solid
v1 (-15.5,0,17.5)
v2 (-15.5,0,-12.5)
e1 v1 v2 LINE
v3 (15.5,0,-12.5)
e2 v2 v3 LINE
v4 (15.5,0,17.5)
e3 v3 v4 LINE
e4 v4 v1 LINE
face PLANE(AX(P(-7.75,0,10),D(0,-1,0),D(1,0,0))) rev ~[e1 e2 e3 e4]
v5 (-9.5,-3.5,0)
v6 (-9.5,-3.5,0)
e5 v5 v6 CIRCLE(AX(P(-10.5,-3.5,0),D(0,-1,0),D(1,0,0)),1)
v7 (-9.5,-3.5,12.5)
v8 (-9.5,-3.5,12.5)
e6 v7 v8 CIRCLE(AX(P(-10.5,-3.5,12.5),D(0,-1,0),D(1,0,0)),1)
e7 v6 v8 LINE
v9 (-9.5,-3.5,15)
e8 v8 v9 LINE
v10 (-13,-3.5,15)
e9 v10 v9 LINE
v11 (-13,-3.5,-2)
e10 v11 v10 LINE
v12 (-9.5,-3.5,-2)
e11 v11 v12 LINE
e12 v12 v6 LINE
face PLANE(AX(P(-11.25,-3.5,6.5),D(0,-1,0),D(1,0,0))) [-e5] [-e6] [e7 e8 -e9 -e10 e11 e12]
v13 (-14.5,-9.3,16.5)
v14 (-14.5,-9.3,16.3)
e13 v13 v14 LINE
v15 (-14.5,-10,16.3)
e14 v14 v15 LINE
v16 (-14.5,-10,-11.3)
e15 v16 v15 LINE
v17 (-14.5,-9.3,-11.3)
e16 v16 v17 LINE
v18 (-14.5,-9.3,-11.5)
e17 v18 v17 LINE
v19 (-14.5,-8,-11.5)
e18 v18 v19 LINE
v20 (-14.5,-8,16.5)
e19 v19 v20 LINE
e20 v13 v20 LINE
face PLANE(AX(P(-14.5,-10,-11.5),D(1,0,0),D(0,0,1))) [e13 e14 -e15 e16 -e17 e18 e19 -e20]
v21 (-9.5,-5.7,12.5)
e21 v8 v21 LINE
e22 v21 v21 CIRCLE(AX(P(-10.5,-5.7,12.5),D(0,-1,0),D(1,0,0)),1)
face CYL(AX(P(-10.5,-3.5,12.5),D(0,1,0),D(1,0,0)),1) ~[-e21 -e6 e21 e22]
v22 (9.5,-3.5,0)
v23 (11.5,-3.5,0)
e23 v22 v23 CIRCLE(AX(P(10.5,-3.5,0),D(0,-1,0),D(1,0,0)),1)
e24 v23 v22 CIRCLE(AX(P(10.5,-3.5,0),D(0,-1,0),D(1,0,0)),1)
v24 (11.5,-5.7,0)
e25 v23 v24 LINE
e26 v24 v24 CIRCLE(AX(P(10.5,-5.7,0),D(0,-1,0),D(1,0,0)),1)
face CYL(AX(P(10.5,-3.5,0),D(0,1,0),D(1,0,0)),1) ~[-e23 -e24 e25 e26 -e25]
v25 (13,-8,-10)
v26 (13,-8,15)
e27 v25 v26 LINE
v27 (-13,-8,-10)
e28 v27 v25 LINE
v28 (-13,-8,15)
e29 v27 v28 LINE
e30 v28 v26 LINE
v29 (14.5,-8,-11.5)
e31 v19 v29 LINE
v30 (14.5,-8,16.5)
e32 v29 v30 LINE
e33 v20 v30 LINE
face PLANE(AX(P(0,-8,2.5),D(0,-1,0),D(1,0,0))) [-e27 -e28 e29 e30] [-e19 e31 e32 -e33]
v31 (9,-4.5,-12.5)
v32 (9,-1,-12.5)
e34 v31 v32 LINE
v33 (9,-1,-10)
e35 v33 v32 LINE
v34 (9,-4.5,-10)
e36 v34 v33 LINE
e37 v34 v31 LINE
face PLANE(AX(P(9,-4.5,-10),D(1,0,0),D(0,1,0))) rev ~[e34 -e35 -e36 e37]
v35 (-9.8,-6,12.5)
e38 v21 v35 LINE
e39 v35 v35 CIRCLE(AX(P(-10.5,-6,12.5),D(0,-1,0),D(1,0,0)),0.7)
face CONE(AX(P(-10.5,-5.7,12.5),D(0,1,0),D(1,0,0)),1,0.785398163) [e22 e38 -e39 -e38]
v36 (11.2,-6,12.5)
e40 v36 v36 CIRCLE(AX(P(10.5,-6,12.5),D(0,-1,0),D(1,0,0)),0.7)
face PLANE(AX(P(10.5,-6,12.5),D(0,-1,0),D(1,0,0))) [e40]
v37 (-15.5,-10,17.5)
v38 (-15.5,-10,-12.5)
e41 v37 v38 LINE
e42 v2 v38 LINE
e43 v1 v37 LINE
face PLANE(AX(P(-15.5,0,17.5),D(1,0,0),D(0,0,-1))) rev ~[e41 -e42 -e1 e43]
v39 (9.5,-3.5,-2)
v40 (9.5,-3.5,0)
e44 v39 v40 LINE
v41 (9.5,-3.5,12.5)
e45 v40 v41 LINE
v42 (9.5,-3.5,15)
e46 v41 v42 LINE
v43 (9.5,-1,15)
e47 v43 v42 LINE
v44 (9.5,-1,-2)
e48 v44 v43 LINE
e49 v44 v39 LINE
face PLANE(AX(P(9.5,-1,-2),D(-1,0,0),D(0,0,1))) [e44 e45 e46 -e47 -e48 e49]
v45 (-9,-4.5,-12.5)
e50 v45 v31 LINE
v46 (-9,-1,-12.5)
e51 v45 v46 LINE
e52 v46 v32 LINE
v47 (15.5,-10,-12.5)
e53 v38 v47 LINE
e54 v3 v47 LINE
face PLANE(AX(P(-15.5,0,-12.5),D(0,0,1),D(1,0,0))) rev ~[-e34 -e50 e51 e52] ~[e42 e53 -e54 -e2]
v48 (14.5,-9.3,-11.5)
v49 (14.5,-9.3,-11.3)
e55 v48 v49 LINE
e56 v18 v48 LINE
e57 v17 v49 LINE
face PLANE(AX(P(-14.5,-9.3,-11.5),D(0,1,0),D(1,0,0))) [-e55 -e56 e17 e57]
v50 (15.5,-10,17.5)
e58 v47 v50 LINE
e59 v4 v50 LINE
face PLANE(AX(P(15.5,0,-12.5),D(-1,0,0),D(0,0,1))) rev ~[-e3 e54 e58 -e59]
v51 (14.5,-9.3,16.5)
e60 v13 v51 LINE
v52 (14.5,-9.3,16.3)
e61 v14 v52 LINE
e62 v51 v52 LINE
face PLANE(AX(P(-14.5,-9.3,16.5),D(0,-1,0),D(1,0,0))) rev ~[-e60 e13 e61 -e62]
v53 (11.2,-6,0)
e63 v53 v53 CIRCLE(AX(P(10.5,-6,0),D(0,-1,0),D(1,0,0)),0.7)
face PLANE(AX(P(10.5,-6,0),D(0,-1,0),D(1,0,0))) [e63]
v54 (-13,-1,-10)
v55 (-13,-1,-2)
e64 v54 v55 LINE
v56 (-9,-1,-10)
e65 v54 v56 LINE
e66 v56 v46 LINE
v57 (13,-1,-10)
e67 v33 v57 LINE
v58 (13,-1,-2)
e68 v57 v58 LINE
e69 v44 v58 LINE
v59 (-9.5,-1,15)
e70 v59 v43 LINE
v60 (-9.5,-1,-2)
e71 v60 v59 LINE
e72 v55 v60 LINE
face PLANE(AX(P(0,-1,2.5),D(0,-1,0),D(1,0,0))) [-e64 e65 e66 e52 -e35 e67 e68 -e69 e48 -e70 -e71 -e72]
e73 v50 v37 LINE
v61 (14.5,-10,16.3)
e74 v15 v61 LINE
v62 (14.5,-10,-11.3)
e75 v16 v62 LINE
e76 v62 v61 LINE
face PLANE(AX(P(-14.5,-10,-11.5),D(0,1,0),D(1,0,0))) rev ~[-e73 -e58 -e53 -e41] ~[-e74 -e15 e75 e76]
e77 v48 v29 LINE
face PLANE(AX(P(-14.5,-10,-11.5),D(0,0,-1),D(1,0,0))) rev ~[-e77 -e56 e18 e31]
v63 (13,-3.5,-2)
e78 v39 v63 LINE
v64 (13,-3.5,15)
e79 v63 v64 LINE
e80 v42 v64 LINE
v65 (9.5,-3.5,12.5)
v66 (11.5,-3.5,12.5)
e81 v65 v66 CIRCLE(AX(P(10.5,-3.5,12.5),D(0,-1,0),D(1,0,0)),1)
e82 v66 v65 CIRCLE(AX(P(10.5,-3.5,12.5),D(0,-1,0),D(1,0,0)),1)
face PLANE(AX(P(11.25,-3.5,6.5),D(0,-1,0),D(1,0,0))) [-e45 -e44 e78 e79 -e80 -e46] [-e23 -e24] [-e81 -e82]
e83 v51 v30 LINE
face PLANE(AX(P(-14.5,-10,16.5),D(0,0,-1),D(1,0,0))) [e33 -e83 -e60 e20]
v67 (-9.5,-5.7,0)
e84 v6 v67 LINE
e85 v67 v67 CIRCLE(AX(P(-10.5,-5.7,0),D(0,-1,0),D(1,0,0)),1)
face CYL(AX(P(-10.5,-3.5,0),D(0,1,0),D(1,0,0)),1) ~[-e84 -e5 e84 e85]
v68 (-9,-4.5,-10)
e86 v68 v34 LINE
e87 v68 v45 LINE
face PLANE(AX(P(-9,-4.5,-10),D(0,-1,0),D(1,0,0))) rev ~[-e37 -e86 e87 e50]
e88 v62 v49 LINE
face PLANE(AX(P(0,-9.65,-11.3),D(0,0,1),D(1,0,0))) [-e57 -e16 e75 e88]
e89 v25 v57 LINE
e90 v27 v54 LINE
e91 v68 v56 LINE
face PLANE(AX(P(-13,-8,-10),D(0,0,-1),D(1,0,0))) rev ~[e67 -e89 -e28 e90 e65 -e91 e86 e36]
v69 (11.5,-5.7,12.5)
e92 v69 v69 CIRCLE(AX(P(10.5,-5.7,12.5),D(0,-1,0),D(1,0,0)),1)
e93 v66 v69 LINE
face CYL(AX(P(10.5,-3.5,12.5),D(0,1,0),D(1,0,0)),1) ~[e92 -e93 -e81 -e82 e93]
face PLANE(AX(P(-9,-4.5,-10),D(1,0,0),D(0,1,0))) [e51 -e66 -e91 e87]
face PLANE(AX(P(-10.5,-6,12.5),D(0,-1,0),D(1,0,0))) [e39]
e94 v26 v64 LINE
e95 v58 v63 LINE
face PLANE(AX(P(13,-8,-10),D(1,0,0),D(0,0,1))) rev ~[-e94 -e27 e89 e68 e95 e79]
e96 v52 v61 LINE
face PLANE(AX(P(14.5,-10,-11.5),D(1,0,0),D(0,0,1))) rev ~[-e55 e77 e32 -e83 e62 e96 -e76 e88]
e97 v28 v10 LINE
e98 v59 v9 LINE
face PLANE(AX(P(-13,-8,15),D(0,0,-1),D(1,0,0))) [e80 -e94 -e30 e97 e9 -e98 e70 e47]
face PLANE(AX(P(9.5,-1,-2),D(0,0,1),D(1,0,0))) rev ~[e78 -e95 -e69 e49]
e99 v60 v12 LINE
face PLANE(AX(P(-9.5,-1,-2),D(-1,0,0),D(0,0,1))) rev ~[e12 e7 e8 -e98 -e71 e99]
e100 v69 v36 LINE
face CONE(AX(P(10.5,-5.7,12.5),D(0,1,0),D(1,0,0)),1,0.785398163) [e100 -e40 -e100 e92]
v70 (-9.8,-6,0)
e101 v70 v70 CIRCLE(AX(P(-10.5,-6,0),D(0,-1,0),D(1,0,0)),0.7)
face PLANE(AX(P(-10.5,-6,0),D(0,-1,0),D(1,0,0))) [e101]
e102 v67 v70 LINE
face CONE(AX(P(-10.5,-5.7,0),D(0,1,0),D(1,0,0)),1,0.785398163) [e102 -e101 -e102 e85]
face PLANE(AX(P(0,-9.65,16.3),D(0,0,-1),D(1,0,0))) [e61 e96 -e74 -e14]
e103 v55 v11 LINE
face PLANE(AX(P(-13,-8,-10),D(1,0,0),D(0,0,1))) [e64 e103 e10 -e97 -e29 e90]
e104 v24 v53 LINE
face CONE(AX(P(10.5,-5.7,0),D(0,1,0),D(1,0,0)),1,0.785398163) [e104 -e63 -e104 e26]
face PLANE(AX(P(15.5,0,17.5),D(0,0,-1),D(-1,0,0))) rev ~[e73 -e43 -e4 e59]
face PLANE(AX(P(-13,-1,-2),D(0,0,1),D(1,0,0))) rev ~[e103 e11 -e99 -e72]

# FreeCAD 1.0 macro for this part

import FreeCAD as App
import Part
import Sketcher
from FreeCAD import Vector
Q = App.Units.Quantity


def edges_at(feature, points):
    """Names of the edges that pass closest to the given points."""
    edges = feature.Shape.Edges
    near = lambda p: min(range(len(edges)), key=lambda i: edges[i].distToShape(Part.Vertex(*p))[0])
    return sorted({f"Edge{near(p) + 1}" for p in points})


def add_polygon(sketch, points):
    """Adds a closed chain of lines whose ends are joined by coincident constraints."""
    first, n = sketch.GeometryCount, len(points)
    for a, b in zip(points, points[1:] + points[:1]):
        sketch.addGeometry(Part.LineSegment(App.Vector(*a, 0), App.Vector(*b, 0)), False)
    for i in range(n):
        sketch.addConstraint(Sketcher.Constraint("Coincident", first + i, 2, first + (i + 1) % n, 1))

doc = App.newDocument("Part")
body = doc.addObject("PartDesign::Body", "Body")

# Sketch on XZ plane
sketch1 = doc.addObject("Sketcher::SketchObject", "Sketch")
body.addObject(sketch1)
sketch1.AttachmentSupport = (doc.XZ_Plane, [""])
sketch1.MapMode = "FlatFace"
add_polygon(sketch1, [(-16, 18), (-16, -12), (16, -12), (16, 18)])  # lines 0-3
sketch1.addConstraint([
    Sketcher.Constraint("Vertical", 0),
    Sketcher.Constraint("Horizontal", 1),
    Sketcher.Constraint("Vertical", 2),
    Sketcher.Constraint("Horizontal", 3),
    Sketcher.Constraint("DistanceX", 1, 1, 1, 2, Q("31 mm")),
    Sketcher.Constraint("DistanceY", 0, 2, 0, 1, Q("30 mm")),
    Sketcher.Constraint("DistanceX", 0, 2, -1, 1, Q("15.5 mm")),
    Sketcher.Constraint("DistanceY", 0, 2, -1, 1, Q("12.5 mm")),
])
pad1 = doc.addObject("PartDesign::Pad", "Pad")
body.addObject(pad1)
pad1.Profile = sketch1
pad1.Length = 10

# Sketch on XZ plane
sketch2 = doc.addObject("Sketcher::SketchObject", "Sketch001")
body.addObject(sketch2)
sketch2.AttachmentSupport = (doc.XZ_Plane, [""])
sketch2.MapMode = "FlatFace"
sketch2.AttachmentOffset = App.Placement(Vector(0, 0, 10), App.Rotation())
add_polygon(sketch2, [(-14, 16), (-14, -12), (14, -12), (14, 16)])  # lines 0-3
sketch2.addConstraint([
    Sketcher.Constraint("Vertical", 0),
    Sketcher.Constraint("Horizontal", 1),
    Sketcher.Constraint("Vertical", 2),
    Sketcher.Constraint("Horizontal", 3),
    Sketcher.Constraint("DistanceX", 1, 1, 1, 2, Q("29 mm")),
    Sketcher.Constraint("DistanceY", 0, 2, 0, 1, Q("28 mm")),
    Sketcher.Constraint("DistanceX", 0, 2, -1, 1, Q("14.5 mm")),
    Sketcher.Constraint("DistanceY", 0, 2, -1, 1, Q("11.5 mm")),
])
pocket1 = doc.addObject("PartDesign::Pocket", "Pocket")
body.addObject(pocket1)
pocket1.Profile = sketch2
pocket1.Length = 2

# Sketch on XZ plane
sketch3 = doc.addObject("Sketcher::SketchObject", "Sketch002")
body.addObject(sketch3)
sketch3.AttachmentSupport = (doc.XZ_Plane, [""])
sketch3.MapMode = "FlatFace"
sketch3.AttachmentOffset = App.Placement(Vector(0, 0, 8), App.Rotation())
add_polygon(sketch3, [(-13, 15), (-13, -10), (13, -10), (13, 15)])  # lines 0-3
sketch3.addConstraint([
    Sketcher.Constraint("Vertical", 0),
    Sketcher.Constraint("Horizontal", 1),
    Sketcher.Constraint("Vertical", 2),
    Sketcher.Constraint("Horizontal", 3),
    Sketcher.Constraint("DistanceX", 1, 1, 1, 2, Q("26 mm")),
    Sketcher.Constraint("DistanceY", 0, 2, 0, 1, Q("25 mm")),
    Sketcher.Constraint("DistanceX", 0, 2, -1, 1, Q("13 mm")),
    Sketcher.Constraint("DistanceY", 0, 2, -1, 1, Q("10 mm")),
])
pocket2 = doc.addObject("PartDesign::Pocket", "Pocket001")
body.addObject(pocket2)
pocket2.Profile = sketch3
pocket2.Length = 7

# Sketch on XZ plane
sketch4 = doc.addObject("Sketcher::SketchObject", "Sketch003")
body.addObject(sketch4)
sketch4.AttachmentSupport = (doc.XZ_Plane, [""])
sketch4.MapMode = "FlatFace"
sketch4.AttachmentOffset = App.Placement(Vector(0, 0, 1), App.Rotation())
add_polygon(sketch4, [(-13, 15), (-13, -2), (-9.5, -2), (-9.5, 15)])  # lines 0-3
add_polygon(sketch4, [(9.5, 15), (9.5, -2), (13, -2), (13, 15)])  # lines 4-7
sketch4.addConstraint([
    Sketcher.Constraint("Vertical", 0),
    Sketcher.Constraint("Horizontal", 1),
    Sketcher.Constraint("Vertical", 2),
    Sketcher.Constraint("Horizontal", 3),
    Sketcher.Constraint("Vertical", 4),
    Sketcher.Constraint("Horizontal", 5),
    Sketcher.Constraint("Vertical", 6),
    Sketcher.Constraint("Horizontal", 7),
    Sketcher.Constraint("Symmetric", 1, 2, 4, 2, -2),
    Sketcher.Constraint("Symmetric", 3, 2, 6, 2, -2),
    Sketcher.Constraint("DistanceY", 0, 2, 0, 1, Q("17 mm")),
    Sketcher.Constraint("DistanceX", 1, 1, 1, 2, Q("3.5 mm")),
    Sketcher.Constraint("DistanceX", 0, 2, -1, 1, Q("13 mm")),
    Sketcher.Constraint("DistanceY", 0, 2, -1, 1, Q("2 mm")),
])
pad2 = doc.addObject("PartDesign::Pad", "Pad001")
body.addObject(pad2)
pad2.Profile = sketch4
pad2.Length = 2.5

# Sketch on XZ plane
sketch5 = doc.addObject("Sketcher::SketchObject", "Sketch004")
body.addObject(sketch5)
sketch5.AttachmentSupport = (doc.XZ_Plane, [""])
sketch5.MapMode = "FlatFace"
sketch5.AttachmentOffset = App.Placement(Vector(0, 0, 3.5), App.Rotation())
sketch5.addGeometry([
    Part.Circle(Vector(-10.5, 12.5, 0), Vector(0, 0, 1), 1),
    Part.Circle(Vector(-10.5, 0, 0), Vector(0, 0, 1), 1),
    Part.Circle(Vector(10.5, 12.5, 0), Vector(0, 0, 1), 1),
    Part.Circle(Vector(10.5, 0, 0), Vector(0, 0, 1), 1),
], False)
sketch5.addConstraint([
    Sketcher.Constraint("Equal", 0, 1),
    Sketcher.Constraint("Equal", 1, 2),
    Sketcher.Constraint("Equal", 2, 3),
    Sketcher.Constraint("Symmetric", 1, 3, 3, 3, -1, 1),
    Sketcher.Constraint("Symmetric", 0, 3, 2, 3, -2),
    Sketcher.Constraint("PointOnObject", 1, 3, -1),
    Sketcher.Constraint("Vertical", 0, 3, 1, 3),
    Sketcher.Constraint("Diameter", 0, Q("2 mm")),
    Sketcher.Constraint("DistanceX", 0, 3, 2, 3, Q("21 mm")),
    Sketcher.Constraint("DistanceY", -1, 1, 0, 3, Q("12.5 mm")),
])
pad3 = doc.addObject("PartDesign::Pad", "Pad002")
body.addObject(pad3)
pad3.Profile = sketch5
pad3.Length = 2.5

# Sketch on XY plane
sketch6 = doc.addObject("Sketcher::SketchObject", "Sketch005")
body.addObject(sketch6)
sketch6.AttachmentSupport = (doc.XY_Plane, [""])
sketch6.MapMode = "FlatFace"
sketch6.AttachmentOffset = App.Placement(Vector(0, 0, -10), App.Rotation())
add_polygon(sketch6, [(-9, -1), (-9, -4.5), (9, -4.5), (9, -1)])  # lines 0-3
sketch6.addConstraint([
    Sketcher.Constraint("Vertical", 0),
    Sketcher.Constraint("Horizontal", 1),
    Sketcher.Constraint("Vertical", 2),
    Sketcher.Constraint("Horizontal", 3),
    Sketcher.Constraint("DistanceX", 1, 1, 1, 2, Q("18 mm")),
    Sketcher.Constraint("DistanceY", 0, 2, 0, 1, Q("3.5 mm")),
    Sketcher.Constraint("DistanceX", 0, 2, -1, 1, Q("9 mm")),
    Sketcher.Constraint("DistanceY", 2, 2, -1, 1, Q("1 mm")),
])
pocket3 = doc.addObject("PartDesign::Pocket", "Pocket002")
body.addObject(pocket3)
pocket3.Profile = sketch6
pocket3.Length = 25
doc.recompute()

chamfer = doc.addObject("PartDesign::Chamfer", "Chamfer")
body.addObject(chamfer)
chamfer.Base = (pocket3, edges_at(pocket3, [
    (-11.5, -6, 12.5),
    (-11.5, -6, 0),
    (9.5, -6, 12.5),
    (9.5, -6, 0),
]))
chamfer.Size = 0.3

# Sketch on XY plane
sketch7 = doc.addObject("Sketcher::SketchObject", "Sketch006")
body.addObject(sketch7)
sketch7.AttachmentSupport = (doc.XY_Plane, [""])
sketch7.MapMode = "FlatFace"
sketch7.AttachmentOffset = App.Placement(Vector(0, 0, 16.5), App.Rotation())
add_polygon(sketch7, [(-14.5, -10), (-14.5, -9.3), (14.5, -9.3), (14.5, -10)])  # lines 0-3
sketch7.addConstraint([
    Sketcher.Constraint("Vertical", 0),
    Sketcher.Constraint("Horizontal", 1),
    Sketcher.Constraint("Vertical", 2),
    Sketcher.Constraint("Horizontal", 3),
    Sketcher.Constraint("DistanceX", 1, 1, 1, 2, Q("29 mm")),
    Sketcher.Constraint("DistanceY", 0, 1, 0, 2, Q("0.7 mm")),
    Sketcher.Constraint("DistanceY", 2, 2, -1, 1, Q("10 mm")),
    Sketcher.Constraint("DistanceX", 0, 2, -1, 1, Q("14.5 mm")),
])
pad4 = doc.addObject("PartDesign::Pad", "Pad003")
body.addObject(pad4)
pad4.Profile = sketch7
pad4.Length = 0.2
pad4.Reversed = True

# Sketch on XY plane
sketch8 = doc.addObject("Sketcher::SketchObject", "Sketch007")
body.addObject(sketch8)
sketch8.AttachmentSupport = (doc.XY_Plane, [""])
sketch8.MapMode = "FlatFace"
sketch8.AttachmentOffset = App.Placement(Vector(0, 0, -11.5), App.Rotation())
add_polygon(sketch8, [(-14.5, -9.3), (-14.5, -10), (14.5, -10), (14.5, -9.3)])  # lines 0-3
sketch8.addConstraint([
    Sketcher.Constraint("Vertical", 0),
    Sketcher.Constraint("Horizontal", 1),
    Sketcher.Constraint("Vertical", 2),
    Sketcher.Constraint("Horizontal", 3),
    Sketcher.Constraint("DistanceX", 1, 1, 1, 2, Q("29 mm")),
    Sketcher.Constraint("DistanceY", 0, 2, 0, 1, Q("0.7 mm")),
    Sketcher.Constraint("DistanceY", 0, 2, -1, 1, Q("10 mm")),
    Sketcher.Constraint("DistanceX", 0, 2, -1, 1, Q("14.5 mm")),
])
pad5 = doc.addObject("PartDesign::Pad", "Pad004")
body.addObject(pad5)
pad5.Profile = sketch8
pad5.Length = 0.2

doc.recompute()
